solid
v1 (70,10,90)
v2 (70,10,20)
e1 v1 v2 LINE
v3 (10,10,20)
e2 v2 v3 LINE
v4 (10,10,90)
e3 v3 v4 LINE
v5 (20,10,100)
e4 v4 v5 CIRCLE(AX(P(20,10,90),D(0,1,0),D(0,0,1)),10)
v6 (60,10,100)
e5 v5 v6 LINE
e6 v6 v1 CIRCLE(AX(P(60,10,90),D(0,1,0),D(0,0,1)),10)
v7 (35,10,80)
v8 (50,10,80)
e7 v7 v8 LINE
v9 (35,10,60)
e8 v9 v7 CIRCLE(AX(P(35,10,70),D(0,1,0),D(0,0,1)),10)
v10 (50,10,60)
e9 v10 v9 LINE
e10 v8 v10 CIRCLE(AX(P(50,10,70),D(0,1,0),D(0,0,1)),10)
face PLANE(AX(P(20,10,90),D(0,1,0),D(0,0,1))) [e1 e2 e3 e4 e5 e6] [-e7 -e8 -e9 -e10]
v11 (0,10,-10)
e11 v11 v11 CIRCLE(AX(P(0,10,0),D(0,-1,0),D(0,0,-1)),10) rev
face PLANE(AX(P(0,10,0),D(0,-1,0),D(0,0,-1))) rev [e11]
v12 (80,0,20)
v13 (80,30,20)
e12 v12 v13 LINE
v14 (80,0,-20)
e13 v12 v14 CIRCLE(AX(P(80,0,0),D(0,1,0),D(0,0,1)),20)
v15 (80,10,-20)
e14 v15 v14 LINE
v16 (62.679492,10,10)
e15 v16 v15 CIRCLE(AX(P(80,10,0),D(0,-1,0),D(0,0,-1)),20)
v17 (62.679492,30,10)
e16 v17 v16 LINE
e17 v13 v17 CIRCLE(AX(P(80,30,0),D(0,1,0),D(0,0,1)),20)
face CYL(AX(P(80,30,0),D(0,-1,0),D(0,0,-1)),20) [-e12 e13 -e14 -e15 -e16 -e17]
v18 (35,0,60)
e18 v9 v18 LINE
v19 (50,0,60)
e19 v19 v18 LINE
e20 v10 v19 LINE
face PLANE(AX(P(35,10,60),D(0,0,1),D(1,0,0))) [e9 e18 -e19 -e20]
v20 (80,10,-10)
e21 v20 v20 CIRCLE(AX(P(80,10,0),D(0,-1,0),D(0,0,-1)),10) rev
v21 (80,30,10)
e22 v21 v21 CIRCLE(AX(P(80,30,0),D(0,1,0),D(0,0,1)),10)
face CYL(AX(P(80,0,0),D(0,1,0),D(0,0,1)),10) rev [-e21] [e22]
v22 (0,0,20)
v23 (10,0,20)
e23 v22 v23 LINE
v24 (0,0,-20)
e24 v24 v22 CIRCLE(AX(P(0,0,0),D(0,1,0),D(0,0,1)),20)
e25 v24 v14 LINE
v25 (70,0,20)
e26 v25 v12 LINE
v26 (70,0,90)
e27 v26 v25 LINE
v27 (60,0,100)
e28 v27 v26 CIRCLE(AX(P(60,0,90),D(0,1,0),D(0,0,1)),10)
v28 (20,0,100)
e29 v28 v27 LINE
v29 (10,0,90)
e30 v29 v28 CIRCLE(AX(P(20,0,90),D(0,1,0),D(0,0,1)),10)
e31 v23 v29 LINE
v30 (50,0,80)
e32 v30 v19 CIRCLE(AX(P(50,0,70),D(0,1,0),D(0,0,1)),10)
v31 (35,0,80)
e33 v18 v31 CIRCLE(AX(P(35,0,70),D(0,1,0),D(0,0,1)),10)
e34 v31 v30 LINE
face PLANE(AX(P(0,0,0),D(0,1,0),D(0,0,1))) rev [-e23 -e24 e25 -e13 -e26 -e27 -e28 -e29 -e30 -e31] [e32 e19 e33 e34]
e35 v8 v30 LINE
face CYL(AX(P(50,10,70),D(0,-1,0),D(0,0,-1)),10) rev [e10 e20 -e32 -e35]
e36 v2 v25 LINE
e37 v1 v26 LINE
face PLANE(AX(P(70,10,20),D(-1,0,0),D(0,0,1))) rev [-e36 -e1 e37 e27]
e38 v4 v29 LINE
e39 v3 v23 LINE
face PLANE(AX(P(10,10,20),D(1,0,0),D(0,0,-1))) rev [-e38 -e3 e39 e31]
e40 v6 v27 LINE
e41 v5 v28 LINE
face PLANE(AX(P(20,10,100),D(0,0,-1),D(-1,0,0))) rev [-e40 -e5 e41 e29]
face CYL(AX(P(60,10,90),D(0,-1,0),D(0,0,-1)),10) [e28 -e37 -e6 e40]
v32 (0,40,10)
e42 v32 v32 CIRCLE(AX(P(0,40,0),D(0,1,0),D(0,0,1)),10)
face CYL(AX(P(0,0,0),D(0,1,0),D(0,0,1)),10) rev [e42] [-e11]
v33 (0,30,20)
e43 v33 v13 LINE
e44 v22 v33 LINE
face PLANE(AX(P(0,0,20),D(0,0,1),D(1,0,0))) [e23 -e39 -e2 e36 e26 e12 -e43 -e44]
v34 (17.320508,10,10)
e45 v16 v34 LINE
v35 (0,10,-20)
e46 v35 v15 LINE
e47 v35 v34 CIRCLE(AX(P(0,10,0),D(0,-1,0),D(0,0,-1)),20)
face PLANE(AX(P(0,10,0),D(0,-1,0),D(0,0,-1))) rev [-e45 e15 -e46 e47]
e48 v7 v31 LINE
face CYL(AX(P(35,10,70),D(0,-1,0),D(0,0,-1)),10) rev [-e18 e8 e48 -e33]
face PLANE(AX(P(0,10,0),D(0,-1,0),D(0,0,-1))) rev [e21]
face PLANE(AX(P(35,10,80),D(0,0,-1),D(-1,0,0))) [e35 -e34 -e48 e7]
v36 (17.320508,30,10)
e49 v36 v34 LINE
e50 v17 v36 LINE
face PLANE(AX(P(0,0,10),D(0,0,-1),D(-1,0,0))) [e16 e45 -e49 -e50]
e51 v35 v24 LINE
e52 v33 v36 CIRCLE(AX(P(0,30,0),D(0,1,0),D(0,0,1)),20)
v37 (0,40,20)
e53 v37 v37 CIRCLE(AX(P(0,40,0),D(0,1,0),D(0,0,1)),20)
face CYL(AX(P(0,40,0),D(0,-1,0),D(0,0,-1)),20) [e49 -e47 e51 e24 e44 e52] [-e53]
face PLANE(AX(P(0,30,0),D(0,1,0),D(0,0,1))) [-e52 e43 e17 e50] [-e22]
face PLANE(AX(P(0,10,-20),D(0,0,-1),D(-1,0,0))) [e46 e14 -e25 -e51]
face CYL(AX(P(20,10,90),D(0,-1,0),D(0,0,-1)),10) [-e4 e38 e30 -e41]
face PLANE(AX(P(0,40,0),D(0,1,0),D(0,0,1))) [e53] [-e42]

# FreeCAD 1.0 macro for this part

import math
import FreeCAD as App
import Part
import Sketcher

V = App.Vector
Q = App.Units.Quantity


def add_polygon(sketch, points):
    """Adds a closed chain of lines whose ends are joined by coincident constraints."""
    first, n = sketch.GeometryCount, len(points)
    for a, b in zip(points, points[1:] + points[:1]):
        sketch.addGeometry(Part.LineSegment(App.Vector(*a, 0), App.Vector(*b, 0)), False)
    for i in range(n):
        sketch.addConstraint(Sketcher.Constraint("Coincident", first + i, 2, first + (i + 1) % n, 1))

doc = App.newDocument("Part")
body = doc.addObject("PartDesign::Body", "Body")

# Sketch on XZ plane
sketch1 = body.newObject("Sketcher::SketchObject", "Sketch")
sketch1.AttachmentSupport = (doc.getObject("XZ_Plane"), [""])
sketch1.MapMode = "FlatFace"
sketch1.addGeometry(Part.Circle(V(0, 0, 0), V(0, 0, 1), 20), False)
sketch1.addConstraint([
    Sketcher.Constraint("Coincident", 0, 3, -1, 1),
    Sketcher.Constraint("Diameter", 0, Q("40 mm")),
])
pad1 = body.newObject("PartDesign::Pad", "Pad")
pad1.Profile = sketch1
pad1.Length = 40
pad1.Reversed = True

# Sketch on XZ plane
sketch2 = body.newObject("Sketcher::SketchObject", "Sketch001")
sketch2.AttachmentSupport = (doc.getObject("XZ_Plane"), [""])
sketch2.MapMode = "FlatFace"
sketch2.AttachmentOffset = App.Placement(V(0, 0, -40), App.Rotation())
sketch2.addGeometry(Part.Circle(V(0, 0, 0), V(0, 0, 1), 10), False)
sketch2.addConstraint([
    Sketcher.Constraint("Coincident", 0, 3, -1, 1),
    Sketcher.Constraint("Diameter", 0, Q("20 mm")),
])
pocket1 = body.newObject("PartDesign::Pocket", "Pocket")
pocket1.Profile = sketch2
pocket1.Type = "ThroughAll"
pocket1.Reversed = True
body2 = doc.addObject("PartDesign::Body", "Body001")

# Sketch on XZ plane
sketch3 = body2.newObject("Sketcher::SketchObject", "Sketch002")
sketch3.AttachmentSupport = (doc.getObject("XZ_Plane001"), [""])
sketch3.MapMode = "FlatFace"
sketch3.addGeometry(Part.Circle(V(80, 0, 0), V(0, 0, 1), 20), False)
sketch3.addConstraint([
    Sketcher.Constraint("PointOnObject", 0, 3, -1),
    Sketcher.Constraint("Diameter", 0, Q("40 mm")),
    Sketcher.Constraint("DistanceX", -1, 1, 0, 3, Q("80 mm")),
])
pad2 = body2.newObject("PartDesign::Pad", "Pad001")
pad2.Profile = sketch3
pad2.Length = 30
pad2.Reversed = True

# Sketch on XZ plane
sketch4 = body2.newObject("Sketcher::SketchObject", "Sketch003")
sketch4.AttachmentSupport = (doc.getObject("XZ_Plane001"), [""])
sketch4.MapMode = "FlatFace"
sketch4.AttachmentOffset = App.Placement(V(0, 0, -30), App.Rotation())
sketch4.addGeometry(Part.Circle(V(80, 0, 0), V(0, 0, 1), 10), False)
sketch4.addConstraint([
    Sketcher.Constraint("PointOnObject", 0, 3, -1),
    Sketcher.Constraint("Diameter", 0, Q("20 mm")),
    Sketcher.Constraint("DistanceX", -1, 1, 0, 3, Q("80 mm")),
])
pocket2 = body2.newObject("PartDesign::Pocket", "Pocket001")
pocket2.Profile = sketch4
pocket2.Type = "ThroughAll"
pocket2.Reversed = True
body.AllowCompound = True
doc.recompute()

boolean = body.newObject("PartDesign::Boolean", "Boolean")
boolean.Type = "Fuse"
boolean.addObjects([body2])

# Sketch on XZ plane
sketch5 = body.newObject("Sketcher::SketchObject", "Sketch004")
sketch5.AttachmentSupport = (doc.getObject("XZ_Plane"), [""])
sketch5.MapMode = "FlatFace"
sketch5.AttachmentOffset = App.Placement(V(0, 0, -30), App.Rotation())
add_polygon(sketch5, [(0, 10), (0, 20), (80, 20), (80, 10)])  # lines 0-3
sketch5.addConstraint([
    Sketcher.Constraint("Vertical", 0),
    Sketcher.Constraint("Horizontal", 1),
    Sketcher.Constraint("Vertical", 2),
    Sketcher.Constraint("Horizontal", 3),
    Sketcher.Constraint("PointOnObject", 0, 2, -2),
    Sketcher.Constraint("DistanceX", 1, 1, 1, 2, Q("80 mm")),
    Sketcher.Constraint("DistanceY", 0, 1, 0, 2, Q("10 mm")),
    Sketcher.Constraint("DistanceY", -1, 1, 0, 2, Q("20 mm")),
])
pad3 = body.newObject("PartDesign::Pad", "Pad002")
pad3.Profile = sketch5
pad3.Length = 30

# Sketch on XZ plane
sketch6 = body.newObject("Sketcher::SketchObject", "Sketch005")
sketch6.AttachmentSupport = (doc.getObject("XZ_Plane"), [""])
sketch6.MapMode = "FlatFace"
sketch6.addGeometry([
    Part.LineSegment(V(80, 20, 0), V(0, 20, 0)),
    Part.ArcOfCircle(Part.Circle(V(0, 0, 0), V(0, 0, 1), 20), math.radians(90), math.radians(270)),
    Part.LineSegment(V(0, -20, 0), V(80, -20, 0)),
    Part.ArcOfCircle(Part.Circle(V(80, 0, 0), V(0, 0, 1), 20), math.radians(-90), math.radians(90)),
], False)
sketch6.addConstraint([
    Sketcher.Constraint("Tangent", 0, 2, 1, 1),
    Sketcher.Constraint("Tangent", 1, 2, 2, 1),
    Sketcher.Constraint("Tangent", 2, 2, 3, 1),
    Sketcher.Constraint("Tangent", 3, 2, 0, 1),
    Sketcher.Constraint("Horizontal", 0),
    Sketcher.Constraint("Horizontal", 2),
    Sketcher.Constraint("Coincident", 1, 3, -1, 1),
    Sketcher.Constraint("Radius", 1, Q("20 mm")),
    Sketcher.Constraint("DistanceX", 0, 2, 0, 1, Q("80 mm")),
])
pad4 = body.newObject("PartDesign::Pad", "Pad003")
pad4.Profile = sketch6
pad4.Length = 10
pad4.Reversed = True

# Sketch on XZ plane
sketch7 = body.newObject("Sketcher::SketchObject", "Sketch006")
sketch7.AttachmentSupport = (doc.getObject("XZ_Plane"), [""])
sketch7.MapMode = "FlatFace"
sketch7.addGeometry([
    Part.LineSegment(V(70, 20, 0), V(10, 20, 0)),  # 0
    Part.LineSegment(V(10, 20, 0), V(10, 90, 0)),  # 1
    Part.ArcOfCircle(Part.Circle(V(20, 90, 0), V(0, 0, 1), 10), math.radians(90), math.radians(180)),  # 2
    Part.LineSegment(V(20, 100, 0), V(60, 100, 0)),  # 3
    Part.ArcOfCircle(Part.Circle(V(60, 90, 0), V(0, 0, 1), 10), math.radians(0), math.radians(90)),  # 4
    Part.LineSegment(V(70, 90, 0), V(70, 20, 0)),  # 5
    Part.LineSegment(V(35, 60, 0), V(50, 60, 0)),  # 6
    Part.ArcOfCircle(Part.Circle(V(50, 70, 0), V(0, 0, 1), 10), math.radians(-90), math.radians(90)),  # 7
    Part.LineSegment(V(50, 80, 0), V(35, 80, 0)),  # 8
    Part.ArcOfCircle(Part.Circle(V(35, 70, 0), V(0, 0, 1), 10), math.radians(90), math.radians(270)),  # 9
], False)
sketch7.addConstraint([
    Sketcher.Constraint("Coincident", 0, 2, 1, 1),
    Sketcher.Constraint("Tangent", 1, 2, 2, 2),
    Sketcher.Constraint("Tangent", 2, 1, 3, 1),
    Sketcher.Constraint("Tangent", 3, 2, 4, 2),
    Sketcher.Constraint("Tangent", 4, 1, 5, 1),
    Sketcher.Constraint("Coincident", 5, 2, 0, 1),
    Sketcher.Constraint("Tangent", 6, 2, 7, 1),
    Sketcher.Constraint("Tangent", 7, 2, 8, 1),
    Sketcher.Constraint("Tangent", 8, 2, 9, 1),
    Sketcher.Constraint("Tangent", 9, 2, 6, 1),
    Sketcher.Constraint("Horizontal", 0),
    Sketcher.Constraint("Vertical", 1),
    Sketcher.Constraint("Horizontal", 3),
    Sketcher.Constraint("Vertical", 5),
    Sketcher.Constraint("Horizontal", 6),
    Sketcher.Constraint("Horizontal", 8),
    Sketcher.Constraint("Equal", 2, 4),
    Sketcher.Constraint("Equal", 4, 7),
    Sketcher.Constraint("Radius", 2, Q("10 mm")),
    Sketcher.Constraint("DistanceX", 0, 2, 0, 1, Q("60 mm")),
    Sketcher.Constraint("DistanceX", 6, 1, 6, 2, Q("15 mm")),
    Sketcher.Constraint("DistanceY", 1, 1, 1, 2, Q("70 mm")),
    Sketcher.Constraint("DistanceX", -1, 1, 2, 3, Q("20 mm")),
    Sketcher.Constraint("DistanceY", -1, 1, 2, 3, Q("90 mm")),
    Sketcher.Constraint("DistanceX", -1, 1, 7, 3, Q("50 mm")),
    Sketcher.Constraint("DistanceY", -1, 1, 7, 3, Q("70 mm")),
])
pad5 = body.newObject("PartDesign::Pad", "Pad004")
pad5.Profile = sketch7
pad5.Length = 10
pad5.Reversed = True

doc.recompute()
